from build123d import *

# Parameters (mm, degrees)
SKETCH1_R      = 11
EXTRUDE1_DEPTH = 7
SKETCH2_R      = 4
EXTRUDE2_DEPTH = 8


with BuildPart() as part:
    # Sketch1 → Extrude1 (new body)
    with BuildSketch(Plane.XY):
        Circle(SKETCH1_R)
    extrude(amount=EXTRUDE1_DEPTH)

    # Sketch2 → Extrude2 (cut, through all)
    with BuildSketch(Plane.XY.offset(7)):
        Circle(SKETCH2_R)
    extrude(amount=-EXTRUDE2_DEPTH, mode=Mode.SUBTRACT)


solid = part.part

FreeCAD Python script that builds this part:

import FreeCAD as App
import Part
import Sketcher

V = App.Vector
Q = App.Units.Quantity

doc = App.newDocument("Part")
body = doc.addObject("PartDesign::Body", "Body")

# Sketch on XY plane
sketch1 = body.newObject("Sketcher::SketchObject", "Sketch")
sketch1.AttachmentSupport = (doc.getObject("XY_Plane"), [""])
sketch1.MapMode = "FlatFace"
sketch1.addGeometry(Part.Circle(V(0, 0, 0), V(0, 0, 1), 11), False)
sketch1.addConstraint(Sketcher.Constraint("Coincident", 0, 3, -1, 1))
sketch1.addConstraint(Sketcher.Constraint("Diameter", 0, Q("22 mm")))
pad1 = body.newObject("PartDesign::Pad", "Pad")
pad1.Profile = sketch1
pad1.Length = 7

# Sketch on XY plane
sketch2 = body.newObject("Sketcher::SketchObject", "Sketch001")
sketch2.AttachmentSupport = (doc.getObject("XY_Plane"), [""])
sketch2.MapMode = "FlatFace"
sketch2.AttachmentOffset = App.Placement(V(0, 0, 7), App.Rotation())
sketch2.addGeometry(Part.Circle(V(0, 0, 0), V(0, 0, 1), 4), False)
sketch2.addConstraint(Sketcher.Constraint("Coincident", 0, 3, -1, 1))
sketch2.addConstraint(Sketcher.Constraint("Diameter", 0, Q("8 mm")))
pocket1 = body.newObject("PartDesign::Pocket", "Pocket")
pocket1.Profile = sketch2
pocket1.Type = "ThroughAll"

doc.recompute()
